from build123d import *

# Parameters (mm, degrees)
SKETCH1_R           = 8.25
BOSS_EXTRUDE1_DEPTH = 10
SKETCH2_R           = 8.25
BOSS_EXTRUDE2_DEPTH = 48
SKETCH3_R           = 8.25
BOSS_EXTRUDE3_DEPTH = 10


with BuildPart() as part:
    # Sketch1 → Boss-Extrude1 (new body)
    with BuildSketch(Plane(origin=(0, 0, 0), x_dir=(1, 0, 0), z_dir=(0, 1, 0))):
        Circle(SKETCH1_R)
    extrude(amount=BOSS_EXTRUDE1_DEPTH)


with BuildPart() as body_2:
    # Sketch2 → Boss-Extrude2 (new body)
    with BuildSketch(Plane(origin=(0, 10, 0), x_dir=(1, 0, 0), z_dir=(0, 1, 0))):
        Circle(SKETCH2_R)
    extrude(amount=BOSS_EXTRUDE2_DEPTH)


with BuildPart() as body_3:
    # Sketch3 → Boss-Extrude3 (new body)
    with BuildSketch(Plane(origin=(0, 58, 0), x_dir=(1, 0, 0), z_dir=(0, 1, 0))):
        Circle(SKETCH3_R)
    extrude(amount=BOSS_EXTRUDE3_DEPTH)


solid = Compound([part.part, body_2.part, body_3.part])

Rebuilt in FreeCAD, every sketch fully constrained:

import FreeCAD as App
import Part
import Sketcher
Q = App.Units.Quantity

doc = App.newDocument("Part")
params = doc.addObject("Spreadsheet::Sheet", "Params")
for row, (alias, value) in enumerate([
    ("sketch1_diameter", "16.5 mm"),
    ("pad1_length", "10 mm"),
    ("sketch2_diameter", "16.5 mm"),
    ("pad2_length", "48 mm"),
    ("sketch3_diameter", "16.5 mm"),
    ("pad3_length", "10 mm"),
], start=1):
    params.set(f"A{row}", alias)
    params.set(f"B{row}", "=" + value)
    params.setAlias(f"B{row}", alias)

body = doc.addObject("PartDesign::Body", "Body")

sketch1 = body.newObject("Sketcher::SketchObject", "Sketch")
sketch1.AttachmentSupport = (doc.getObject("XZ_Plane"), [""])
sketch1.MapMode = "FlatFace"
sketch1.addGeometry(Part.Circle(App.Vector(0, 0, 0), App.Vector(0, 0, 1), 8), False)
sketch1.addConstraint([
    Sketcher.Constraint("Coincident", 0, 3, -1, 1),
    Sketcher.Constraint("Diameter", 0, Q("16.5 mm")),
])
sketch1.setExpression("Constraints[1]", "Params.sketch1_diameter")
pad1 = body.newObject("PartDesign::Pad", "Pad")
pad1.Profile = sketch1
pad1.setExpression("Length", "Params.pad1_length")
pad1.Reversed = True
body2 = doc.addObject("PartDesign::Body", "Body001")

sketch2 = body2.newObject("Sketcher::SketchObject", "Sketch001")
sketch2.AttachmentSupport = (doc.getObject("XZ_Plane001"), [""])
sketch2.MapMode = "FlatFace"
sketch2.AttachmentOffset = App.Placement(App.Vector(0, 0, -10), App.Rotation())
sketch2.addGeometry(Part.Circle(App.Vector(0, 0, 0), App.Vector(0, 0, 1), 8), False)
sketch2.addConstraint([
    Sketcher.Constraint("Coincident", 0, 3, -1, 1),
    Sketcher.Constraint("Diameter", 0, Q("16.5 mm")),
])
sketch2.setExpression("Constraints[1]", "Params.sketch2_diameter")
pad2 = body2.newObject("PartDesign::Pad", "Pad001")
pad2.Profile = sketch2
pad2.setExpression("Length", "Params.pad2_length")
pad2.Reversed = True
body3 = doc.addObject("PartDesign::Body", "Body002")

sketch3 = body3.newObject("Sketcher::SketchObject", "Sketch002")
sketch3.AttachmentSupport = (doc.getObject("XZ_Plane002"), [""])
sketch3.MapMode = "FlatFace"
sketch3.AttachmentOffset = App.Placement(App.Vector(0, 0, -58), App.Rotation())
sketch3.addGeometry(Part.Circle(App.Vector(0, 0, 0), App.Vector(0, 0, 1), 8), False)
sketch3.addConstraint([
    Sketcher.Constraint("Coincident", 0, 3, -1, 1),
    Sketcher.Constraint("Diameter", 0, Q("16.5 mm")),
])
sketch3.setExpression("Constraints[1]", "Params.sketch3_diameter")
pad3 = body3.newObject("PartDesign::Pad", "Pad002")
pad3.Profile = sketch3
pad3.setExpression("Length", "Params.pad3_length")
pad3.Reversed = True

doc.recompute()
